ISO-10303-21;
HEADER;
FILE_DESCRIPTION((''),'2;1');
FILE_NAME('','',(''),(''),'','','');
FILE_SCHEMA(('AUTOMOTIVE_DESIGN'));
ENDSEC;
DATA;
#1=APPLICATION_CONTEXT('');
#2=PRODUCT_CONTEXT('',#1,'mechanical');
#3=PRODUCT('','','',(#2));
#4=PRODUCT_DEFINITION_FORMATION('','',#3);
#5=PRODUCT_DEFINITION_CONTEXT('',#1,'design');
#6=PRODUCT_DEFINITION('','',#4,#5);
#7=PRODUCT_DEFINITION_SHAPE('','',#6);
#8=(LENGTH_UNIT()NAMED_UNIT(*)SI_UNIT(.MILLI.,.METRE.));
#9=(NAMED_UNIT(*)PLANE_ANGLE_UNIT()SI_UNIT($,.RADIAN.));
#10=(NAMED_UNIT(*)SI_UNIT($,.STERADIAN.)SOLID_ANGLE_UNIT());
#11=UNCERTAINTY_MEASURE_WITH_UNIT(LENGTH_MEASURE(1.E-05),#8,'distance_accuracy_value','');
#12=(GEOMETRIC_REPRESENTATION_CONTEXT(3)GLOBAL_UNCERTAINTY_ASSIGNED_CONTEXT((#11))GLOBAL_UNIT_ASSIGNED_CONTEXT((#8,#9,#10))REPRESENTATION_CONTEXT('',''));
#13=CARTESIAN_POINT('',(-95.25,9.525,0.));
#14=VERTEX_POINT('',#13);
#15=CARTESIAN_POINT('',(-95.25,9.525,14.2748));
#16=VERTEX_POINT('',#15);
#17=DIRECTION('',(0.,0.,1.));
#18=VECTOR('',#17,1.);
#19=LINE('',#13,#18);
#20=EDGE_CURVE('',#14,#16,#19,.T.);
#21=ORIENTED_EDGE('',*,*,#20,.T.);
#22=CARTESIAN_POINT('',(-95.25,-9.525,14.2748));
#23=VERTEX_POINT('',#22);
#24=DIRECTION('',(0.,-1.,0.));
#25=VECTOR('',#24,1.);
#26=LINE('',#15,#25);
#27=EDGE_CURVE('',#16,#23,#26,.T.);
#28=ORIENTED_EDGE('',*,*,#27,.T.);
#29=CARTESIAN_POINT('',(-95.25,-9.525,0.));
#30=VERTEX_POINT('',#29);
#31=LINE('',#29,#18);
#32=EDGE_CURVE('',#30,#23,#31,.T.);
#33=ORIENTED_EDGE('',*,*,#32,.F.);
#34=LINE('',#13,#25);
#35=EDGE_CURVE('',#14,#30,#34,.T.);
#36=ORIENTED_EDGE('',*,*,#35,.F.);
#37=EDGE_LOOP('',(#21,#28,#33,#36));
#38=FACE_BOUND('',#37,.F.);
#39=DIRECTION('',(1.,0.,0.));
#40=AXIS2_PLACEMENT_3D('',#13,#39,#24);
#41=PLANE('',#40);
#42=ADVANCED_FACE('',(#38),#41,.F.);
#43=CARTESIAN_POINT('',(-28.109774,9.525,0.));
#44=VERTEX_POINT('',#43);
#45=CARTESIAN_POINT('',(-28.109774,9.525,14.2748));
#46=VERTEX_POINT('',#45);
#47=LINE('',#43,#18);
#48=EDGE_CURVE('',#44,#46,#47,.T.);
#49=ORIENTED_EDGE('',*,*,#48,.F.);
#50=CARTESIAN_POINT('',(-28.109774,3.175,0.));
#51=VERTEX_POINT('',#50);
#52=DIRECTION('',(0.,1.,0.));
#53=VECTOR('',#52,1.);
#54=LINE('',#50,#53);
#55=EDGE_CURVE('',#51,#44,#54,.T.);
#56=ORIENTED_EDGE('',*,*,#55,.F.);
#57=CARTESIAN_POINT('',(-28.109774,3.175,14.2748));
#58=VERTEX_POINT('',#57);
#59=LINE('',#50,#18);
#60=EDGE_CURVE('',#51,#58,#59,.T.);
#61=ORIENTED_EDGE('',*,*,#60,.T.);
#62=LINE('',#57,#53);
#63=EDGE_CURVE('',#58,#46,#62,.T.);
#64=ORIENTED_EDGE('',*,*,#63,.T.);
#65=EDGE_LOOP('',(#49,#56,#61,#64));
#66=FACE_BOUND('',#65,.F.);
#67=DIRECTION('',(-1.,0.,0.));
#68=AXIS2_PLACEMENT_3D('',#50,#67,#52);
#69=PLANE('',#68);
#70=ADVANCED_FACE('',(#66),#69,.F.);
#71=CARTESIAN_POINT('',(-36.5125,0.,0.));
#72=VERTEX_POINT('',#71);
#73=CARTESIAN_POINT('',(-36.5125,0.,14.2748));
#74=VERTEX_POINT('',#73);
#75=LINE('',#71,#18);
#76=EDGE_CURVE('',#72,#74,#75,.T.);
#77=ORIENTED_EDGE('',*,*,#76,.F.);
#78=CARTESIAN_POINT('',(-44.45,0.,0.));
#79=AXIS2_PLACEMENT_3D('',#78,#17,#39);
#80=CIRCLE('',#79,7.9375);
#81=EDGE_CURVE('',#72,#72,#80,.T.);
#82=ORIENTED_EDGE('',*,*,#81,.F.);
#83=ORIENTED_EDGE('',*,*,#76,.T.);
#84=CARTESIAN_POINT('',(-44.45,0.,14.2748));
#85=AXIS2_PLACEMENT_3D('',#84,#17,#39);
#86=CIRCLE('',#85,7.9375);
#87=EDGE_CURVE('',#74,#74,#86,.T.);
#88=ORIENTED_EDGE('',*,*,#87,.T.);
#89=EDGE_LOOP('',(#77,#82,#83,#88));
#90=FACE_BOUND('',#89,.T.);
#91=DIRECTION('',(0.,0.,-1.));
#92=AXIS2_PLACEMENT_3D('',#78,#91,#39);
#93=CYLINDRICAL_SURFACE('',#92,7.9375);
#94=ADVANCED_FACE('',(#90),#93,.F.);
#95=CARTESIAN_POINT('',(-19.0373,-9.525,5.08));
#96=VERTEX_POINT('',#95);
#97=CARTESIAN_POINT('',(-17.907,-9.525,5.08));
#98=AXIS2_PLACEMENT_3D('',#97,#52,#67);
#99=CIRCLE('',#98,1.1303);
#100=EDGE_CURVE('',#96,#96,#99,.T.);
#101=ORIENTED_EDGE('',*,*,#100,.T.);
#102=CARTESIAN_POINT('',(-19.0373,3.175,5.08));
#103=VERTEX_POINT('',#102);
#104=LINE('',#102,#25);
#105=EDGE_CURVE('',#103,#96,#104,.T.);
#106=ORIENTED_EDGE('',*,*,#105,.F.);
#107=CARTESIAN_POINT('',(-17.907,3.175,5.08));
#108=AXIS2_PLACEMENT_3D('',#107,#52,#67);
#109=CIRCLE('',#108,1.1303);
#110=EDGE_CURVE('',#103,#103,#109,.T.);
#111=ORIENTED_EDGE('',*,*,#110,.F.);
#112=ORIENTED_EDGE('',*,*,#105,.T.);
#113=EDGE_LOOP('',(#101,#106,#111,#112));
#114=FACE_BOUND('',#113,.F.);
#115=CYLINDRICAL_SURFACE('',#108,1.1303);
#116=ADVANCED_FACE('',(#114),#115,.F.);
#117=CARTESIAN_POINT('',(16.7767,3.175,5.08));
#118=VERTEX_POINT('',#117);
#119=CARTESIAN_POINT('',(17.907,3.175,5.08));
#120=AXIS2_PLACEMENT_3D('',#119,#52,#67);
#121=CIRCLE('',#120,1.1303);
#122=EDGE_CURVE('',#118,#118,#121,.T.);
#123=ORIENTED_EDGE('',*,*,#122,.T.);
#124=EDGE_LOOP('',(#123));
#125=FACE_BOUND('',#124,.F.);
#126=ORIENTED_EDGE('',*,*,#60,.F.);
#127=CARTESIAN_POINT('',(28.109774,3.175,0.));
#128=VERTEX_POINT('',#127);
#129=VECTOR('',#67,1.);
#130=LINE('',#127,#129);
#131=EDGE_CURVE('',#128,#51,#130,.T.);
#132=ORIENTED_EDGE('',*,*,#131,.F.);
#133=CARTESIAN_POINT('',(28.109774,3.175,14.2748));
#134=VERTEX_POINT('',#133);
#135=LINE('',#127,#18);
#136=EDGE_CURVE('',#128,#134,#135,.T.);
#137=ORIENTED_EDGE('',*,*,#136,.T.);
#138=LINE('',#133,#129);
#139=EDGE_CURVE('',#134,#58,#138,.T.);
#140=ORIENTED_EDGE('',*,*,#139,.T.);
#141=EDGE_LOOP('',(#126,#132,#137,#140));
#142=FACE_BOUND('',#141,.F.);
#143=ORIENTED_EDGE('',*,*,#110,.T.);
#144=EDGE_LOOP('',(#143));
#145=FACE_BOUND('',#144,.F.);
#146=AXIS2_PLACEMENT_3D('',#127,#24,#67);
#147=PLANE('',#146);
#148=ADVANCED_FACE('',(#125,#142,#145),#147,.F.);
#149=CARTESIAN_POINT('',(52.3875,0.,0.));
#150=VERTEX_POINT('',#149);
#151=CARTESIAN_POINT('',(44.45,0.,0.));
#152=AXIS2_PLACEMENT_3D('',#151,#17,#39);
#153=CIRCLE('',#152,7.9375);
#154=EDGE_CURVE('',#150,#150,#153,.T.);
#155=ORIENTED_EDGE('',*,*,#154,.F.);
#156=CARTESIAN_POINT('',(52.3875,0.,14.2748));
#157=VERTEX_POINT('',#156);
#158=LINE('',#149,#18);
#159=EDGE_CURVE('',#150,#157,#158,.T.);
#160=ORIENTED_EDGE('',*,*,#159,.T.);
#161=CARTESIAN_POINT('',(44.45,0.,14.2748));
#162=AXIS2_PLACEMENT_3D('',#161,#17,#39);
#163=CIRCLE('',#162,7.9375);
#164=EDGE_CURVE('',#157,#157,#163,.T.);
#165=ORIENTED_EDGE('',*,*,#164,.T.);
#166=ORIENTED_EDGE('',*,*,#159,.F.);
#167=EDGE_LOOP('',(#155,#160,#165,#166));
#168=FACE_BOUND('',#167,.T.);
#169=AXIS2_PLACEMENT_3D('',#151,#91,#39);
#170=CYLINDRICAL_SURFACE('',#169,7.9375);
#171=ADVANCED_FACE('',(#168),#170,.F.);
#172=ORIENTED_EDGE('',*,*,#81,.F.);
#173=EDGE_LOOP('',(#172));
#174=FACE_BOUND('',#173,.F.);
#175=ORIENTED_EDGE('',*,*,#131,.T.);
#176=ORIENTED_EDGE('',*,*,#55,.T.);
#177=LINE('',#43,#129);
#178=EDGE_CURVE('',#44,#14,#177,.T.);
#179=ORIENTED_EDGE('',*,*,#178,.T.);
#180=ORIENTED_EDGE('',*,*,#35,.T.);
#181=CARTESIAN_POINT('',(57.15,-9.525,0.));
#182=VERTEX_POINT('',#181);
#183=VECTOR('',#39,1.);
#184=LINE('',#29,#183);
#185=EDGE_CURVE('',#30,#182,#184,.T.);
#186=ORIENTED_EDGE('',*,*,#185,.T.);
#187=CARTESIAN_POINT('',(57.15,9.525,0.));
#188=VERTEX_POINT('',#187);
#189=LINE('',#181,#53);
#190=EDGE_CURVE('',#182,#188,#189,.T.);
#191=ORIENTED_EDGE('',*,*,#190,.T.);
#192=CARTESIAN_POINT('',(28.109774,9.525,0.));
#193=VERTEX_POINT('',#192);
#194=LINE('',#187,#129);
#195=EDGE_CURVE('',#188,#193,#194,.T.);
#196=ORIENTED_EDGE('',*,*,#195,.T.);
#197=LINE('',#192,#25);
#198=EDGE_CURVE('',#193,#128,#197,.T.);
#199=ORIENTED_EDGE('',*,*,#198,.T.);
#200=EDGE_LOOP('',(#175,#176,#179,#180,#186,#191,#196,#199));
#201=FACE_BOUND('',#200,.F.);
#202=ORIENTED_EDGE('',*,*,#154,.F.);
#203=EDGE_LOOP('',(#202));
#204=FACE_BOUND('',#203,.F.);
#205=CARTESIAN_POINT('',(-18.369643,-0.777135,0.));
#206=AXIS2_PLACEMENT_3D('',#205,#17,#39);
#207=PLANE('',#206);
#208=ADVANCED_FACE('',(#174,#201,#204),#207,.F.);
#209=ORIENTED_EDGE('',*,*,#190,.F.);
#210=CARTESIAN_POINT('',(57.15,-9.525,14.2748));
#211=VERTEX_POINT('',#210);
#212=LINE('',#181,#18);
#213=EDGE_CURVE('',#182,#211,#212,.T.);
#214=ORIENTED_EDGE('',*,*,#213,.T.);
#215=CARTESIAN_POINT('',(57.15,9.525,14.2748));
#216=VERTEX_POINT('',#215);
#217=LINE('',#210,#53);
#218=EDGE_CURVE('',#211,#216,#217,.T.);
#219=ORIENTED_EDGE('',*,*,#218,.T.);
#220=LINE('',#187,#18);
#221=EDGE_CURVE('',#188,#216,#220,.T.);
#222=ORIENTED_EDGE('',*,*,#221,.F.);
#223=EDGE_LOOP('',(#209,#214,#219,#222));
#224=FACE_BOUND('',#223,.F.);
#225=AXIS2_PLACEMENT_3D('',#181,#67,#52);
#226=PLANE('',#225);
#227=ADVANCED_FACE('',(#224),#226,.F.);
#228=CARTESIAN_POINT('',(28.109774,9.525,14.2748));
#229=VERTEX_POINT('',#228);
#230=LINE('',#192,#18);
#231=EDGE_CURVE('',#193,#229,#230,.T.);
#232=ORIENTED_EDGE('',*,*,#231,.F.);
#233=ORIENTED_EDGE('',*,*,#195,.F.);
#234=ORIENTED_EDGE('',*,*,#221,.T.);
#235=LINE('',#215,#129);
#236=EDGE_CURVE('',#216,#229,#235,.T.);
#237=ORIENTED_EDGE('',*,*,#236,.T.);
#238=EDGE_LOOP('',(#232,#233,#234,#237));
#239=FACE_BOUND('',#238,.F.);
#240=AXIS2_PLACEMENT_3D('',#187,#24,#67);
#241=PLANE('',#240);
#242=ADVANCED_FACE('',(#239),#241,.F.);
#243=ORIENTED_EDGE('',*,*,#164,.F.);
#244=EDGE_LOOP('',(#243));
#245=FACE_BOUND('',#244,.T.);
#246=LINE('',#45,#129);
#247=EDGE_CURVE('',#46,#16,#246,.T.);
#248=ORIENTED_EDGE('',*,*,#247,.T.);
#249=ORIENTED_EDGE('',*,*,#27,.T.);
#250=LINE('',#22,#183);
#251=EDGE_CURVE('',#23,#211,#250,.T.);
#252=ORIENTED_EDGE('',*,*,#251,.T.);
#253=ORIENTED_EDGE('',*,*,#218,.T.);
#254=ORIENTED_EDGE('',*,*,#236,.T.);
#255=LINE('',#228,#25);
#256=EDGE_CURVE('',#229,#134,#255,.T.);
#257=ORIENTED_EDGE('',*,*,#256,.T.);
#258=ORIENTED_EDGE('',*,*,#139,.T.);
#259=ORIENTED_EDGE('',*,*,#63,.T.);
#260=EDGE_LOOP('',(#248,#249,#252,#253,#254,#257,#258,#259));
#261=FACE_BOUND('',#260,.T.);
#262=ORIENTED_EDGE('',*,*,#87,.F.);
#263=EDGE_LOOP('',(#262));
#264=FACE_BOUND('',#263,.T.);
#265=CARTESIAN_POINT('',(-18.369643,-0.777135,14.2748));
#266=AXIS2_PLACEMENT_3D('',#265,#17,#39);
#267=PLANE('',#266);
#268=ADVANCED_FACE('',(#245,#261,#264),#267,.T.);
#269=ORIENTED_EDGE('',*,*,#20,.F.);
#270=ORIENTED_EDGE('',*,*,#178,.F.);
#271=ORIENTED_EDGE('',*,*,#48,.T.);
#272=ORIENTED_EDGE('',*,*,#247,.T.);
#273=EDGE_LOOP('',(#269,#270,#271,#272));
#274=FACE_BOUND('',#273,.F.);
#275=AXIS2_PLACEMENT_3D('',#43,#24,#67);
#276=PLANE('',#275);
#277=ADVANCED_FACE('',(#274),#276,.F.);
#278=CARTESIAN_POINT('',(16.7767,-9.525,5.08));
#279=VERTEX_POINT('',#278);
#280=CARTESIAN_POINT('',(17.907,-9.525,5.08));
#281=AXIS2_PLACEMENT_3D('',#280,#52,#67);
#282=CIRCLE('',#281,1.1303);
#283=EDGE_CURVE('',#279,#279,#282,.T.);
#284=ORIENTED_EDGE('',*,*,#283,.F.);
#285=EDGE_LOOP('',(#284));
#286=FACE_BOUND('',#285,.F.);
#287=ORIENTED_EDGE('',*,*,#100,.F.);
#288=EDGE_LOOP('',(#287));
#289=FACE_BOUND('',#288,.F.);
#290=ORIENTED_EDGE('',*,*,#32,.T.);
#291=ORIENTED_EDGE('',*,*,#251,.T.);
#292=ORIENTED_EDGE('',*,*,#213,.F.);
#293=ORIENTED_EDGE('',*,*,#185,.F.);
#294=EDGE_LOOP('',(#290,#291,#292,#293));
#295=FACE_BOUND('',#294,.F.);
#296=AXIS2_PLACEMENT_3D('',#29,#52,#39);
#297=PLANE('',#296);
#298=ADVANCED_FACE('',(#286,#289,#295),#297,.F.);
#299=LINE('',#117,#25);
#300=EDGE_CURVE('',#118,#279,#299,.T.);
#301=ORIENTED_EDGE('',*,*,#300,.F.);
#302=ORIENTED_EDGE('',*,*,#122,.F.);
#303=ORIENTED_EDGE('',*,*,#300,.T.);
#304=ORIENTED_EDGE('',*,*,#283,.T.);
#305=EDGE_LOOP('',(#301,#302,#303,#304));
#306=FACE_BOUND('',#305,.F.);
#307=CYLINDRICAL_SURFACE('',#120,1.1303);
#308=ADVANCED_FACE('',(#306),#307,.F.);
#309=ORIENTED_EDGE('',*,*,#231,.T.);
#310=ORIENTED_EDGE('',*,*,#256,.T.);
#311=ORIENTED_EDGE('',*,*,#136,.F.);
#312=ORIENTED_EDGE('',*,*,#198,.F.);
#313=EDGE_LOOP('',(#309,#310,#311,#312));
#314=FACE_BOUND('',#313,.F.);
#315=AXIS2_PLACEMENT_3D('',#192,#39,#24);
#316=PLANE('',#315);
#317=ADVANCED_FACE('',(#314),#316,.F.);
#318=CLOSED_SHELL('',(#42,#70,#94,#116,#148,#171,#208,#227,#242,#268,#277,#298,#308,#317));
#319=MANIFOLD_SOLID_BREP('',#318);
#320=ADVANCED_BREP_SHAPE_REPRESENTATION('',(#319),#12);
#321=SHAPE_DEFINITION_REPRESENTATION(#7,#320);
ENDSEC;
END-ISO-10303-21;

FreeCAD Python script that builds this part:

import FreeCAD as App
import Part
import Sketcher

V = App.Vector
Q = App.Units.Quantity

doc = App.newDocument("Part")
body = doc.addObject("PartDesign::Body", "Body")

# Sketch on XY plane
sketch1 = body.newObject("Sketcher::SketchObject", "Sketch")
sketch1.AttachmentSupport = (doc.getObject("XY_Plane"), [""])
sketch1.MapMode = "FlatFace"
sketch1.addGeometry([
    Part.LineSegment(V(57, -10, 0), V(57, 10, 0)),  # 0
    Part.LineSegment(V(57, 10, 0), V(28, 10, 0)),  # 1
    Part.LineSegment(V(28, 10, 0), V(28, 3, 0)),  # 2
    Part.LineSegment(V(28, 3, 0), V(-28, 3, 0)),  # 3
    Part.LineSegment(V(-28, 3, 0), V(-28, 10, 0)),  # 4
    Part.LineSegment(V(-28, 10, 0), V(-95, 10, 0)),  # 5
    Part.LineSegment(V(-95, 10, 0), V(-95, -10, 0)),  # 6
    Part.LineSegment(V(-95, -10, 0), V(57, -10, 0)),  # 7
    Part.Circle(V(-44, 0, 0), V(0, 0, 1), 8),  # 8
    Part.Circle(V(44, 0, 0), V(0, 0, 1), 8),  # 9
], False)
sketch1.addConstraint([
    Sketcher.Constraint("Coincident", 0, 2, 1, 1),
    Sketcher.Constraint("Coincident", 1, 2, 2, 1),
    Sketcher.Constraint("Coincident", 2, 2, 3, 1),
    Sketcher.Constraint("Coincident", 3, 2, 4, 1),
    Sketcher.Constraint("Coincident", 4, 2, 5, 1),
    Sketcher.Constraint("Coincident", 5, 2, 6, 1),
    Sketcher.Constraint("Coincident", 6, 2, 7, 1),
    Sketcher.Constraint("Coincident", 7, 2, 0, 1),
    Sketcher.Constraint("Vertical", 0),
    Sketcher.Constraint("Horizontal", 1),
    Sketcher.Constraint("Vertical", 2),
    Sketcher.Constraint("Horizontal", 3),
    Sketcher.Constraint("Vertical", 4),
    Sketcher.Constraint("Horizontal", 5),
    Sketcher.Constraint("Vertical", 6),
    Sketcher.Constraint("Horizontal", 7),
    Sketcher.Constraint("Equal", 8, 9),
    Sketcher.Constraint("Symmetric", 8, 3, 9, 3, -1, 1),
    Sketcher.Constraint("Symmetric", 1, 2, 4, 2, -2),
    Sketcher.Constraint("PointOnObject", 8, 3, -1),
    Sketcher.Constraint("DistanceX", 7, 1, 7, 2, Q("6 in")),
    Sketcher.Constraint("Diameter", 8, Q("0.625 in")),
    Sketcher.Constraint("DistanceX", 8, 3, 0, 2, Q("4 in")),
    Sketcher.Constraint("DistanceY", 0, 1, 0, 2, Q("0.75 in")),
    Sketcher.Constraint("DistanceY", 2, 2, 2, 1, Q("0.25 in")),
    Sketcher.Constraint("DistanceX", 8, 3, 9, 3, Q("3.5 in")),
    Sketcher.Constraint("DistanceY", -1, 1, 0, 2, Q("0.375 in")),
    Sketcher.Constraint("DistanceX", 3, 2, 3, 1, Q("56.219548 mm")),
])
pad1 = body.newObject("PartDesign::Pad", "Pad")
pad1.Profile = sketch1
pad1.Length = Q("0.562 in")

# Sketch on XZ plane
sketch2 = body.newObject("Sketcher::SketchObject", "Sketch001")
sketch2.AttachmentSupport = (doc.getObject("XZ_Plane"), [""])
sketch2.MapMode = "FlatFace"
sketch2.AttachmentOffset = App.Placement(V(0, 0, -0.125 * 25.4), App.Rotation())
sketch2.addGeometry([
    Part.Circle(V(17.9, 5.1, 0), V(0, 0, 1), 1.1),
    Part.Circle(V(-17.9, 5.1, 0), V(0, 0, 1), 1.1),
], False)
sketch2.addConstraint([
    Sketcher.Constraint("Equal", 0, 1),
    Sketcher.Constraint("Symmetric", 0, 3, 1, 3, -2),
    Sketcher.Constraint("Diameter", 0, Q("0.089 in")),
    Sketcher.Constraint("DistanceY", -1, 1, 0, 3, Q("0.2 in")),
    Sketcher.Constraint("DistanceX", 1, 3, 0, 3, Q("1.41 in")),
])
pocket1 = body.newObject("PartDesign::Pocket", "Pocket")
pocket1.Profile = sketch2
pocket1.Type = "ThroughAll"
pocket1.Reversed = True

doc.recompute()
